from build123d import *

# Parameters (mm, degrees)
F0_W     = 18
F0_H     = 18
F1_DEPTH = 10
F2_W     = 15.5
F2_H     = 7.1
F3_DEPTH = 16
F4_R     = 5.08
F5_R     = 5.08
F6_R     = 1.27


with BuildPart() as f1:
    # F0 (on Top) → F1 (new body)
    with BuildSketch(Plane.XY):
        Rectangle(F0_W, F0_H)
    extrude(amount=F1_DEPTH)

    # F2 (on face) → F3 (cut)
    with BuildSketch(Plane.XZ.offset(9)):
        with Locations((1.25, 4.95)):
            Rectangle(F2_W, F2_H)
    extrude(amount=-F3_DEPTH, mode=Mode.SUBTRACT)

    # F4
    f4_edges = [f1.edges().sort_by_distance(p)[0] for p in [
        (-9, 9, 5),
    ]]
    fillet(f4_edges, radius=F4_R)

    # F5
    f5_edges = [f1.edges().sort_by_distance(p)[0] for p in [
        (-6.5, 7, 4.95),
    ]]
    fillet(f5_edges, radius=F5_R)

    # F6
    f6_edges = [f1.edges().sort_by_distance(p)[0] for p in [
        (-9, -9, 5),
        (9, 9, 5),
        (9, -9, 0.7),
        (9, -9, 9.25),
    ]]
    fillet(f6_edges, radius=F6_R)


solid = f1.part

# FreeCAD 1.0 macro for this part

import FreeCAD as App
import Part
import Sketcher


def edges_at(feature, points):
    """Names of the edges that pass closest to the given points."""
    edges = feature.Shape.Edges
    near = lambda p: min(range(len(edges)), key=lambda i: edges[i].distToShape(Part.Vertex(*p))[0])
    return sorted({f"Edge{near(p) + 1}" for p in points})

doc = App.newDocument("Part")
params = doc.addObject("Spreadsheet::Sheet", "Params")
for row, (alias, value) in enumerate([
    ("sketch1_width", "18 mm"),
    ("pad1_length", "10 mm"),
    ("sketch2_width", "15.5 mm"),
    ("sketch2_height", "7.1 mm"),
    ("pocket1_length", "16 mm"),
    ("fillet_radius", "5.08 mm"),
    ("fillet2_radius", "5.08 mm"),
    ("fillet3_radius", "1.27 mm"),
], start=1):
    params.set(f"A{row}", alias)
    params.set(f"B{row}", "=" + value)
    params.setAlias(f"B{row}", alias)

body = doc.addObject("PartDesign::Body", "Body")

# Sketch on XY plane
sketch1 = body.newObject("Sketcher::SketchObject", "Sketch")
sketch1.AttachmentSupport = (doc.getObject("XY_Plane"), [""])
sketch1.MapMode = "FlatFace"
sketch1.addGeometry(Part.LineSegment(App.Vector(-9, 9, 0), App.Vector(-9, -9, 0)), False)
sketch1.addGeometry(Part.LineSegment(App.Vector(-9, -9, 0), App.Vector(9, -9, 0)), False)
sketch1.addGeometry(Part.LineSegment(App.Vector(9, -9, 0), App.Vector(9, 9, 0)), False)
sketch1.addGeometry(Part.LineSegment(App.Vector(9, 9, 0), App.Vector(-9, 9, 0)), False)
sketch1.addConstraint(Sketcher.Constraint("Coincident", 0, 2, 1, 1))
sketch1.addConstraint(Sketcher.Constraint("Coincident", 1, 2, 2, 1))
sketch1.addConstraint(Sketcher.Constraint("Coincident", 2, 2, 3, 1))
sketch1.addConstraint(Sketcher.Constraint("Coincident", 3, 2, 0, 1))
sketch1.addConstraint(Sketcher.Constraint("Vertical", 0))
sketch1.addConstraint(Sketcher.Constraint("Horizontal", 1))
sketch1.addConstraint(Sketcher.Constraint("Vertical", 2))
sketch1.addConstraint(Sketcher.Constraint("Horizontal", 3))
sketch1.addConstraint(Sketcher.Constraint("Symmetric", 0, 2, 2, 2, -1, 1))
sketch1.addConstraint(Sketcher.Constraint("Equal", 3, 0))
sketch1.addConstraint(Sketcher.Constraint("DistanceX", 1, 1, 1, 2, 18.0))
sketch1.setExpression("Constraints[10]", "Params.sketch1_width")
pad1 = body.newObject("PartDesign::Pad", "Pad")
pad1.Profile = sketch1
pad1.setExpression("Length", "Params.pad1_length")

# Sketch on XZ plane
sketch2 = body.newObject("Sketcher::SketchObject", "Sketch001")
sketch2.AttachmentSupport = (doc.getObject("XZ_Plane"), [""])
sketch2.MapMode = "FlatFace"
sketch2.AttachmentOffset = App.Placement(App.Vector(0, 0, 9), App.Rotation())
sketch2.addGeometry(Part.LineSegment(App.Vector(-6.5, 8.5, 0), App.Vector(-6.5, 1.4, 0)), False)
sketch2.addGeometry(Part.LineSegment(App.Vector(-6.5, 1.4, 0), App.Vector(9, 1.4, 0)), False)
sketch2.addGeometry(Part.LineSegment(App.Vector(9, 1.4, 0), App.Vector(9, 8.5, 0)), False)
sketch2.addGeometry(Part.LineSegment(App.Vector(9, 8.5, 0), App.Vector(-6.5, 8.5, 0)), False)
sketch2.addConstraint(Sketcher.Constraint("Coincident", 0, 2, 1, 1))
sketch2.addConstraint(Sketcher.Constraint("Coincident", 1, 2, 2, 1))
sketch2.addConstraint(Sketcher.Constraint("Coincident", 2, 2, 3, 1))
sketch2.addConstraint(Sketcher.Constraint("Coincident", 3, 2, 0, 1))
sketch2.addConstraint(Sketcher.Constraint("Vertical", 0))
sketch2.addConstraint(Sketcher.Constraint("Horizontal", 1))
sketch2.addConstraint(Sketcher.Constraint("Vertical", 2))
sketch2.addConstraint(Sketcher.Constraint("Horizontal", 3))
sketch2.addConstraint(Sketcher.Constraint("DistanceX", 1, 1, 1, 2, 15.5))
sketch2.addConstraint(Sketcher.Constraint("DistanceY", 0, 2, 0, 1, 7.1))
sketch2.addConstraint(Sketcher.Constraint("DistanceX", -1, 1, 1, 2, 9.0))
sketch2.addConstraint(Sketcher.Constraint("DistanceY", -1, 1, 0, 2, 1.4))
sketch2.setExpression("Constraints[8]", "Params.sketch2_width")
sketch2.setExpression("Constraints[9]", "Params.sketch2_height")
pocket1 = body.newObject("PartDesign::Pocket", "Pocket")
pocket1.Profile = sketch2
pocket1.setExpression("Length", "Params.pocket1_length")
doc.recompute()

fillet = body.newObject("PartDesign::Fillet", "Fillet")
fillet.Base = (pocket1, edges_at(pocket1, [(-9, 9, 5)]))
fillet.setExpression("Radius", "Params.fillet_radius")
doc.recompute()

fillet2 = body.newObject("PartDesign::Fillet", "Fillet001")
fillet2.Base = (fillet, edges_at(fillet, [(-6.5, 7, 4.95)]))
fillet2.setExpression("Radius", "Params.fillet2_radius")
doc.recompute()

fillet3 = body.newObject("PartDesign::Fillet", "Fillet002")
fillet3.Base = (fillet2, edges_at(fillet2, [
    (-9, -9, 5),
    (9, 9, 5),
    (9, -9, 0.7),
    (9, -9, 9.25),
]))
fillet3.setExpression("Radius", "Params.fillet3_radius")

doc.recompute()
